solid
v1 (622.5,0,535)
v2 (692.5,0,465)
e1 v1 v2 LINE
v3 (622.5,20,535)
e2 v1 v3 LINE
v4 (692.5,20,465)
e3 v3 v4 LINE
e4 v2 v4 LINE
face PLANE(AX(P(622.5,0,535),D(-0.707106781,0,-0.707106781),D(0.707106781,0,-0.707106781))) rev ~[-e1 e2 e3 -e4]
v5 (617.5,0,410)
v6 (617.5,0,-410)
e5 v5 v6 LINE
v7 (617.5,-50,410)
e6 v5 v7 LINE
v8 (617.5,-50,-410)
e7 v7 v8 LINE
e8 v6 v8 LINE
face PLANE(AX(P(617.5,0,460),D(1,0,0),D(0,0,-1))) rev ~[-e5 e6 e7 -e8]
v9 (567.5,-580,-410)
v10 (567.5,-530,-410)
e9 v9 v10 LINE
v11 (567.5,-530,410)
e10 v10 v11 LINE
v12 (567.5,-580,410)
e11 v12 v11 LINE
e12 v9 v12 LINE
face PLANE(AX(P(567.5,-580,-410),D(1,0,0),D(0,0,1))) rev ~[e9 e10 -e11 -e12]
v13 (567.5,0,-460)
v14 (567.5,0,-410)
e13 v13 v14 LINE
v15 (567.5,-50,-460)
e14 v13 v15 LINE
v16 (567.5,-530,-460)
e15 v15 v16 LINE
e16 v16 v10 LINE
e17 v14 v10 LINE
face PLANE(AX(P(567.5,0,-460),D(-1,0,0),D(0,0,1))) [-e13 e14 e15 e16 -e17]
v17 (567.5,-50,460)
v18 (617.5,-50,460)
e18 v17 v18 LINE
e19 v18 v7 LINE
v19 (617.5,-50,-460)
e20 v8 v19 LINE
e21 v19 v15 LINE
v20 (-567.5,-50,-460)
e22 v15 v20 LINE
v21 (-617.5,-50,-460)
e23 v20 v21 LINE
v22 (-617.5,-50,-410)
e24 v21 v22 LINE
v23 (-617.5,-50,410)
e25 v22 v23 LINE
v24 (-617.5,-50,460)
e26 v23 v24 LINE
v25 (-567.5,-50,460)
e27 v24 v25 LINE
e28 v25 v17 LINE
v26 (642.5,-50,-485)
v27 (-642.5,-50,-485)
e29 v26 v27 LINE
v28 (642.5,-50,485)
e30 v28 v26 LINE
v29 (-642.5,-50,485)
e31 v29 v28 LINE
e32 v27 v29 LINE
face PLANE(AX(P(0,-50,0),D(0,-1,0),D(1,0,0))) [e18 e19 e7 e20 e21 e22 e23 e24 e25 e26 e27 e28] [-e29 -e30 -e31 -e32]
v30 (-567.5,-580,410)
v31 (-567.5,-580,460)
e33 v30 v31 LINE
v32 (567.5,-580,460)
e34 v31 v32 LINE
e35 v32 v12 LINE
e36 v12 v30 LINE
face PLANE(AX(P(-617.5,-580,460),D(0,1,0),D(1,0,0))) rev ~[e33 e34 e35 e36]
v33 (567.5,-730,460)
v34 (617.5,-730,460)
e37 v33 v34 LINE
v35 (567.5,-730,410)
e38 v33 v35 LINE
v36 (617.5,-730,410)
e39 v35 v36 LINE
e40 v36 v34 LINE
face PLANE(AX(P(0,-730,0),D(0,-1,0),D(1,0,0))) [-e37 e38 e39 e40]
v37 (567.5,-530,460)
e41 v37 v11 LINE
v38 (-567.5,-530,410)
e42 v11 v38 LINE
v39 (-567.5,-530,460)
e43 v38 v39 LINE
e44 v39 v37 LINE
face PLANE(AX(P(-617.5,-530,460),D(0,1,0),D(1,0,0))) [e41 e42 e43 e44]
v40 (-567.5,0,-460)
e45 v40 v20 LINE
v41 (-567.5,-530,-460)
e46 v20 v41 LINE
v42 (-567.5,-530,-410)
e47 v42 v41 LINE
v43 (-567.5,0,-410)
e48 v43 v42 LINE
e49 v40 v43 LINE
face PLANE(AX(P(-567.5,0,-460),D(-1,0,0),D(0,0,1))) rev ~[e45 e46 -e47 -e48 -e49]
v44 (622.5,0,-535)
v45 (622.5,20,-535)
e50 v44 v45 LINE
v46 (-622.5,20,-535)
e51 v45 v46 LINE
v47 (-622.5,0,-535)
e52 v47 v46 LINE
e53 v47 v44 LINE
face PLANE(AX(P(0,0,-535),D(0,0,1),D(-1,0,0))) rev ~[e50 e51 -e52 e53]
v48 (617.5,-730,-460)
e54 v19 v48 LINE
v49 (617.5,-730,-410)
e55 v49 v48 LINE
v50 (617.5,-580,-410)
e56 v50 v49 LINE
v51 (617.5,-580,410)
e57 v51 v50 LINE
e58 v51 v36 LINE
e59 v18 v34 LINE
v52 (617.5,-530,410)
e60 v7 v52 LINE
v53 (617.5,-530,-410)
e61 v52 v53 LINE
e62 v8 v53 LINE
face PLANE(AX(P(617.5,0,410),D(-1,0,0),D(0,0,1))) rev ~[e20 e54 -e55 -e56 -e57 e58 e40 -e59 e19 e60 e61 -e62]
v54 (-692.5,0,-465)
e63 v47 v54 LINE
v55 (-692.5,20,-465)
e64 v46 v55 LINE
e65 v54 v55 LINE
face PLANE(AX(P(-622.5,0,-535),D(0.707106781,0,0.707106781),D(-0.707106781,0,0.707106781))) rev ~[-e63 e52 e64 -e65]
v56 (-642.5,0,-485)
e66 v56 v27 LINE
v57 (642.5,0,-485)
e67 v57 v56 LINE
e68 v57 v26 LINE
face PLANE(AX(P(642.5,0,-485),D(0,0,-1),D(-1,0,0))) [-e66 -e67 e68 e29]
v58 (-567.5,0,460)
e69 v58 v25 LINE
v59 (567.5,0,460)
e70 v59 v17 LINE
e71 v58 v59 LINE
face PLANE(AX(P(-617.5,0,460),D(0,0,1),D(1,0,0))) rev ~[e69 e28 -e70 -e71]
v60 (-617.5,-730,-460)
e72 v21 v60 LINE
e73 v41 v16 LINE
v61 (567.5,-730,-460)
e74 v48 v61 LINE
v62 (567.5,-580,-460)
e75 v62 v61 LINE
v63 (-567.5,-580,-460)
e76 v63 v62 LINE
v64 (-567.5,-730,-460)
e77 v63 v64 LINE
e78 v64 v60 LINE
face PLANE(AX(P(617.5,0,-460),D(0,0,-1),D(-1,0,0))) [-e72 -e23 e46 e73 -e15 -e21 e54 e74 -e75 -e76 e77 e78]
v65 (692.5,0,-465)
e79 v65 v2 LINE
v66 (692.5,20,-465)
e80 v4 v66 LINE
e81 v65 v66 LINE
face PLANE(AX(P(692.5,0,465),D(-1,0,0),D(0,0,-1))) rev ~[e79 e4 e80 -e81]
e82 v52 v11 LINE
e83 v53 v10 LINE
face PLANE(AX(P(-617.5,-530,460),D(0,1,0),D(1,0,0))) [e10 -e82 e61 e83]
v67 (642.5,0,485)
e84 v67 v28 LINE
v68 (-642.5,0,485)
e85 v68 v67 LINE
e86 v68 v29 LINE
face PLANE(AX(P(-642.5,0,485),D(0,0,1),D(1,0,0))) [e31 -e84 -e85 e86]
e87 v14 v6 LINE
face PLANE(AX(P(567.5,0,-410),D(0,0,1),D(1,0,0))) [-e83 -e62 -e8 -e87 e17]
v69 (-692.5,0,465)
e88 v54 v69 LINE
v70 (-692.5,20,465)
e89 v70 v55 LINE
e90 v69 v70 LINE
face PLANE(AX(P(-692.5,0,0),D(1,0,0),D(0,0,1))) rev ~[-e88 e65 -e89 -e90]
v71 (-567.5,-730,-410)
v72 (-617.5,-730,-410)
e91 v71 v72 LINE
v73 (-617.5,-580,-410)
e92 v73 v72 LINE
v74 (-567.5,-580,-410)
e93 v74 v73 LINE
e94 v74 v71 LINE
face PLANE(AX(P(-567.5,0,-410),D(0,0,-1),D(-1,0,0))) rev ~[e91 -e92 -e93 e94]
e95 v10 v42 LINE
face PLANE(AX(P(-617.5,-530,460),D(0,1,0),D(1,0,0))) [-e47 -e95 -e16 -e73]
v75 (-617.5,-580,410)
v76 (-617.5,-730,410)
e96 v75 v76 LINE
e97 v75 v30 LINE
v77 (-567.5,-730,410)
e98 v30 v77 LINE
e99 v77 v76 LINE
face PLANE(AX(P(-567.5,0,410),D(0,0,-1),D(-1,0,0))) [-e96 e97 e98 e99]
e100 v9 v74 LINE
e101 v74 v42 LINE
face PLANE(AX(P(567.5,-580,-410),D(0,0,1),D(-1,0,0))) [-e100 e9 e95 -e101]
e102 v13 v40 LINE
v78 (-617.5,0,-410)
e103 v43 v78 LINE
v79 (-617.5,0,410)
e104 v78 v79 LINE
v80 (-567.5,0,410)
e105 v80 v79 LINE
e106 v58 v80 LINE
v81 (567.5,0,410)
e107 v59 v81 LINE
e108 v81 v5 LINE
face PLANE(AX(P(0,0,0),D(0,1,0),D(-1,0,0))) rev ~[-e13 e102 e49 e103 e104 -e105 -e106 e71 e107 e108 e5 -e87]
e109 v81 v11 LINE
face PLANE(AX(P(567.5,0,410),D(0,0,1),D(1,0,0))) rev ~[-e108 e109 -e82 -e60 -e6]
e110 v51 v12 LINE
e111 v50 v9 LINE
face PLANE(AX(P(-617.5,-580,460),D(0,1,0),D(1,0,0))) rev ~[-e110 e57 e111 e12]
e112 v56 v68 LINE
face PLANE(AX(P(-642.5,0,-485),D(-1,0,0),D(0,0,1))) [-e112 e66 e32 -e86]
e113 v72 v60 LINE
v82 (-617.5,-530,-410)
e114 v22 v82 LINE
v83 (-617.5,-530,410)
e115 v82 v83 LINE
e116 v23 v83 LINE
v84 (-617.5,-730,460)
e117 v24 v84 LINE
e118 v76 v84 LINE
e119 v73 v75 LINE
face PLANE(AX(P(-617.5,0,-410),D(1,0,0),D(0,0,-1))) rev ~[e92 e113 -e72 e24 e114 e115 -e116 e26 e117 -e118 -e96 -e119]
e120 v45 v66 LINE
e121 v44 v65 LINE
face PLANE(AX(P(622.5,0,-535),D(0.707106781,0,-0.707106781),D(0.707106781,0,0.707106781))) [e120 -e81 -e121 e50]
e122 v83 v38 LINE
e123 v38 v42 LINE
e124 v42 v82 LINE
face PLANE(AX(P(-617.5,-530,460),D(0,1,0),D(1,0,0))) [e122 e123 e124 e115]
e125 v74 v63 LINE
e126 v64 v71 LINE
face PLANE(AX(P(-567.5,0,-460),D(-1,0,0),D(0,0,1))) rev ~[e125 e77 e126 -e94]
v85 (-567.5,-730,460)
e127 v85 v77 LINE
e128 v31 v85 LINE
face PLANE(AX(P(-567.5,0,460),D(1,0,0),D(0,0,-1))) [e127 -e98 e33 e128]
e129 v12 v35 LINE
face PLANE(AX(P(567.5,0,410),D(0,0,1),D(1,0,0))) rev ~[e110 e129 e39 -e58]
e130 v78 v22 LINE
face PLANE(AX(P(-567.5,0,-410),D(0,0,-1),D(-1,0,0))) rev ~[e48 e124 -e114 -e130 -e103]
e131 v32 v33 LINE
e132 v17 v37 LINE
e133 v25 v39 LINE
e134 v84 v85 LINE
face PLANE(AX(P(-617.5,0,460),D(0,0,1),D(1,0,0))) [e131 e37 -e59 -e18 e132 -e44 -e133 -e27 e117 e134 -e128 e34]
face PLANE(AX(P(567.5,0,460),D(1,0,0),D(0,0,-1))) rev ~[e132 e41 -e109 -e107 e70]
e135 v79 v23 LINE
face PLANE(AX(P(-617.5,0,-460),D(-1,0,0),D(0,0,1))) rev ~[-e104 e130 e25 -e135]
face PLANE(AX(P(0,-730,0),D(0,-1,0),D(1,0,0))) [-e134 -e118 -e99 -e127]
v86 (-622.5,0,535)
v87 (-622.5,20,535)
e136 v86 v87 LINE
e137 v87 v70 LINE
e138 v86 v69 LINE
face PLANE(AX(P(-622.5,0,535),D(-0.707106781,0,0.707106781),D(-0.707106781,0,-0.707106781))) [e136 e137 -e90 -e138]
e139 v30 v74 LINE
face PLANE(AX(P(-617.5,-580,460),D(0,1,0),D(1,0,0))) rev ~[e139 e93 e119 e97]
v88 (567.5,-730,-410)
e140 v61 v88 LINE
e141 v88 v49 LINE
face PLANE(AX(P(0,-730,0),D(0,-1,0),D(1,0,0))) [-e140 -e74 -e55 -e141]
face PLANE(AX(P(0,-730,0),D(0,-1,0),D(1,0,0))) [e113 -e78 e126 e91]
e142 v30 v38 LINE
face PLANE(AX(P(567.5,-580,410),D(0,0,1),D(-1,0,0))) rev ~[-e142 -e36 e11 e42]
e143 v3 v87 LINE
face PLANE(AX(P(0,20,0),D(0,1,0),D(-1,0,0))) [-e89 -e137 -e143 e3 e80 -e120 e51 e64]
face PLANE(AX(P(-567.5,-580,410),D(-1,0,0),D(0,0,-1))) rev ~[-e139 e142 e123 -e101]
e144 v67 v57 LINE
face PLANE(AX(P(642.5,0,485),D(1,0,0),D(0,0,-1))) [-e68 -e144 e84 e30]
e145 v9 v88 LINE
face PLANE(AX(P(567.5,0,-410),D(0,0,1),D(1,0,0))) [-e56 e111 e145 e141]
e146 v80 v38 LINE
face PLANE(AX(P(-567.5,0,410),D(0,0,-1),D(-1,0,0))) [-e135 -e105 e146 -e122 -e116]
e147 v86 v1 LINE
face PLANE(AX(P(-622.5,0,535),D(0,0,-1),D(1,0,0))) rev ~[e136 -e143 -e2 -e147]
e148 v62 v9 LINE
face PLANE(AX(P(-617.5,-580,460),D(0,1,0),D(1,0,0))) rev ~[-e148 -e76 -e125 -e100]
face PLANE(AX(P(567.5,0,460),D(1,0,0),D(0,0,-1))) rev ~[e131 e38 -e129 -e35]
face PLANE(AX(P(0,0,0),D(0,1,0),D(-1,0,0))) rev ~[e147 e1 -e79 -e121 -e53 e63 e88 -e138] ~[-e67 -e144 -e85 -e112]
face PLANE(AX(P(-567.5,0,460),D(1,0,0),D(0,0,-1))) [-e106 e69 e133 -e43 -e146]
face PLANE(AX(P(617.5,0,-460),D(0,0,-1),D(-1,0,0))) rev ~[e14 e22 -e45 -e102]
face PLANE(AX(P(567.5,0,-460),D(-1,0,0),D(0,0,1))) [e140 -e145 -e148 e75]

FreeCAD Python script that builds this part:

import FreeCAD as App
import Part
import Sketcher
from FreeCAD import Vector
Q = App.Units.Quantity

doc = App.newDocument("Part")
body = doc.addObject("PartDesign::Body", "Body")

sketch1 = doc.addObject("Sketcher::SketchObject", "Sketch")
body.addObject(sketch1)
sketch1.AttachmentSupport = (doc.XZ_Plane, [""])
sketch1.MapMode = "FlatFace"
sketch1.addGeometry([
    Part.LineSegment(Vector(-692.5, 465, 0), Vector(-622.5, 535, 0)),
    Part.LineSegment(Vector(-622.5, 535, 0), Vector(622.5, 535, 0)),
    Part.LineSegment(Vector(622.5, 535, 0), Vector(692.5, 465, 0)),
    Part.LineSegment(Vector(692.5, 465, 0), Vector(692.5, -465, 0)),
    Part.LineSegment(Vector(692.5, -465, 0), Vector(622.5, -535, 0)),
    Part.LineSegment(Vector(622.5, -535, 0), Vector(-622.5, -535, 0)),
    Part.LineSegment(Vector(-622.5, -535, 0), Vector(-692.5, -465, 0)),
    Part.LineSegment(Vector(-692.5, -465, 0), Vector(-692.5, 465, 0)),
], False)
sketch1.addConstraint([
    Sketcher.Constraint("Coincident", 0, 2, 1, 1),
    Sketcher.Constraint("Coincident", 1, 2, 2, 1),
    Sketcher.Constraint("Coincident", 2, 2, 3, 1),
    Sketcher.Constraint("Coincident", 3, 2, 4, 1),
    Sketcher.Constraint("Coincident", 4, 2, 5, 1),
    Sketcher.Constraint("Coincident", 5, 2, 6, 1),
    Sketcher.Constraint("Coincident", 6, 2, 7, 1),
    Sketcher.Constraint("Coincident", 7, 2, 0, 1),
    Sketcher.Constraint("Horizontal", 1),
    Sketcher.Constraint("Vertical", 3),
    Sketcher.Constraint("Horizontal", 5),
    Sketcher.Constraint("Vertical", 7),
    Sketcher.Constraint("Symmetric", 0, 2, 4, 2, -1, 1),
    Sketcher.Constraint("Symmetric", 2, 2, 6, 2, -1, 1),
    Sketcher.Constraint("Perpendicular", 0, 2),
    Sketcher.Constraint("Perpendicular", 2, 4),
    Sketcher.Constraint("Perpendicular", 4, 6),
    Sketcher.Constraint("Horizontal", 3, 2, 6, 2),
    Sketcher.Constraint("Vertical", 1, 2, 4, 2),
    Sketcher.Constraint("DistanceY", -1, 1, 0, 2, Q("535 mm")),
    Sketcher.Constraint("DistanceX", 1, 2, 2, 2, Q("70 mm")),
    Sketcher.Constraint("DistanceX", 6, 2, 3, 2, Q("1385 mm")),
])
pad1 = doc.addObject("PartDesign::Pad", "Pad")
body.addObject(pad1)
pad1.Profile = sketch1
pad1.Length = 20
pad1.Reversed = True

sketch2 = doc.addObject("Sketcher::SketchObject", "Sketch001")
body.addObject(sketch2)
sketch2.AttachmentSupport = (doc.XZ_Plane, [""])
sketch2.MapMode = "FlatFace"
sketch2.addGeometry([
    Part.LineSegment(Vector(642.5, 485, 0), Vector(-642.5, 485, 0)),
    Part.LineSegment(Vector(-642.5, 485, 0), Vector(-642.5, -485, 0)),
    Part.LineSegment(Vector(-642.5, -485, 0), Vector(642.5, -485, 0)),
    Part.LineSegment(Vector(642.5, -485, 0), Vector(642.5, 485, 0)),
    Part.LineSegment(Vector(-617.5, -460, 0), Vector(-617.5, 460, 0)),
    Part.LineSegment(Vector(-617.5, 460, 0), Vector(617.5, 460, 0)),
    Part.LineSegment(Vector(617.5, 460, 0), Vector(617.5, -460, 0)),
    Part.LineSegment(Vector(617.5, -460, 0), Vector(-617.5, -460, 0)),
], False)
sketch2.addConstraint([
    Sketcher.Constraint("Coincident", 0, 2, 1, 1),
    Sketcher.Constraint("Coincident", 1, 2, 2, 1),
    Sketcher.Constraint("Coincident", 2, 2, 3, 1),
    Sketcher.Constraint("Coincident", 3, 2, 0, 1),
    Sketcher.Constraint("Coincident", 4, 2, 5, 1),
    Sketcher.Constraint("Coincident", 5, 2, 6, 1),
    Sketcher.Constraint("Coincident", 6, 2, 7, 1),
    Sketcher.Constraint("Coincident", 7, 2, 4, 1),
    Sketcher.Constraint("Horizontal", 0),
    Sketcher.Constraint("Vertical", 1),
    Sketcher.Constraint("Horizontal", 2),
    Sketcher.Constraint("Vertical", 3),
    Sketcher.Constraint("Vertical", 4),
    Sketcher.Constraint("Horizontal", 5),
    Sketcher.Constraint("Vertical", 6),
    Sketcher.Constraint("Horizontal", 7),
    Sketcher.Constraint("Symmetric", 0, 2, 2, 2, -1, 1),
    Sketcher.Constraint("Symmetric", 4, 2, 6, 2, -1, 1),
    Sketcher.Constraint("DistanceX", 0, 2, 4, 2, Q("25 mm")),
    Sketcher.Constraint("DistanceY", 4, 2, 0, 2, Q("25 mm")),
    Sketcher.Constraint("DistanceX", 0, 2, 0, 1, Q("1285 mm")),
    Sketcher.Constraint("DistanceY", 1, 2, 1, 1, Q("970 mm")),
])
pad2 = doc.addObject("PartDesign::Pad", "Pad001")
body.addObject(pad2)
pad2.Profile = sketch2
pad2.Length = 50

sketch3 = doc.addObject("Sketcher::SketchObject", "Sketch002")
body.addObject(sketch3)
sketch3.AttachmentSupport = (doc.XZ_Plane, [""])
sketch3.MapMode = "FlatFace"
sketch3.addGeometry([
    Part.LineSegment(Vector(617.5, 460, 0), Vector(567.5, 460, 0)),
    Part.LineSegment(Vector(567.5, 460, 0), Vector(567.5, 410, 0)),
    Part.LineSegment(Vector(567.5, 410, 0), Vector(617.5, 410, 0)),
    Part.LineSegment(Vector(617.5, 410, 0), Vector(617.5, 460, 0)),
    Part.LineSegment(Vector(567.5, -410, 0), Vector(567.5, -460, 0)),
    Part.LineSegment(Vector(567.5, -460, 0), Vector(617.5, -460, 0)),
    Part.LineSegment(Vector(617.5, -460, 0), Vector(617.5, -410, 0)),
    Part.LineSegment(Vector(617.5, -410, 0), Vector(567.5, -410, 0)),
    Part.LineSegment(Vector(-567.5, 460, 0), Vector(-617.5, 460, 0)),
    Part.LineSegment(Vector(-617.5, 460, 0), Vector(-617.5, 410, 0)),
    Part.LineSegment(Vector(-617.5, 410, 0), Vector(-567.5, 410, 0)),
    Part.LineSegment(Vector(-567.5, 410, 0), Vector(-567.5, 460, 0)),
    Part.LineSegment(Vector(-567.5, -410, 0), Vector(-617.5, -410, 0)),
    Part.LineSegment(Vector(-617.5, -410, 0), Vector(-617.5, -460, 0)),
    Part.LineSegment(Vector(-617.5, -460, 0), Vector(-567.5, -460, 0)),
    Part.LineSegment(Vector(-567.5, -460, 0), Vector(-567.5, -410, 0)),
], False)
sketch3.addConstraint([
    Sketcher.Constraint("Coincident", 0, 2, 1, 1),
    Sketcher.Constraint("Coincident", 1, 2, 2, 1),
    Sketcher.Constraint("Coincident", 2, 2, 3, 1),
    Sketcher.Constraint("Coincident", 3, 2, 0, 1),
    Sketcher.Constraint("Coincident", 4, 2, 5, 1),
    Sketcher.Constraint("Coincident", 5, 2, 6, 1),
    Sketcher.Constraint("Coincident", 6, 2, 7, 1),
    Sketcher.Constraint("Coincident", 7, 2, 4, 1),
    Sketcher.Constraint("Coincident", 8, 2, 9, 1),
    Sketcher.Constraint("Coincident", 9, 2, 10, 1),
    Sketcher.Constraint("Coincident", 10, 2, 11, 1),
    Sketcher.Constraint("Coincident", 11, 2, 8, 1),
    Sketcher.Constraint("Coincident", 12, 2, 13, 1),
    Sketcher.Constraint("Coincident", 13, 2, 14, 1),
    Sketcher.Constraint("Coincident", 14, 2, 15, 1),
    Sketcher.Constraint("Coincident", 15, 2, 12, 1),
    Sketcher.Constraint("Horizontal", 0),
    Sketcher.Constraint("Vertical", 1),
    Sketcher.Constraint("Horizontal", 2),
    Sketcher.Constraint("Vertical", 3),
    Sketcher.Constraint("Vertical", 4),
    Sketcher.Constraint("Horizontal", 5),
    Sketcher.Constraint("Vertical", 6),
    Sketcher.Constraint("Horizontal", 7),
    Sketcher.Constraint("Horizontal", 8),
    Sketcher.Constraint("Vertical", 9),
    Sketcher.Constraint("Horizontal", 10),
    Sketcher.Constraint("Vertical", 11),
    Sketcher.Constraint("Horizontal", 12),
    Sketcher.Constraint("Vertical", 13),
    Sketcher.Constraint("Horizontal", 14),
    Sketcher.Constraint("Vertical", 15),
    Sketcher.Constraint("Symmetric", 5, 2, 8, 2, -1, 1),
    Sketcher.Constraint("Symmetric", 7, 2, 10, 2, -1, 1),
    Sketcher.Constraint("Symmetric", 2, 2, 12, 2, -1, 1),
    Sketcher.Constraint("Symmetric", 0, 2, 14, 2, -1, 1),
    Sketcher.Constraint("Symmetric", 3, 2, 8, 2, -2),
    Sketcher.Constraint("Symmetric", 1, 2, 10, 2, -2),
    Sketcher.Constraint("Equal", 14, 1),
    Sketcher.Constraint("DistanceX", 0, 2, 0, 1, Q("50 mm")),
    Sketcher.Constraint("DistanceY", -1, 1, 0, 2, Q("460 mm")),
    Sketcher.Constraint("DistanceX", 8, 2, 0, 2, Q("1185 mm")),
])
pad3 = doc.addObject("PartDesign::Pad", "Pad002")
body.addObject(pad3)
pad3.Profile = sketch3
pad3.Length = 730

sketch4 = doc.addObject("Sketcher::SketchObject", "Sketch003")
body.addObject(sketch4)
sketch4.AttachmentSupport = (doc.XZ_Plane, [""])
sketch4.MapMode = "FlatFace"
sketch4.AttachmentOffset = App.Placement(Vector(0, 0, 580), App.Rotation())
sketch4.addGeometry([
    Part.LineSegment(Vector(567.5, 410, 0), Vector(617.5, 410, 0)),
    Part.LineSegment(Vector(617.5, 410, 0), Vector(617.5, -410, 0)),
    Part.LineSegment(Vector(617.5, -410, 0), Vector(567.5, -410, 0)),
    Part.LineSegment(Vector(567.5, -410, 0), Vector(567.5, 410, 0)),
    Part.LineSegment(Vector(567.5, 460, 0), Vector(567.5, 410, 0)),
    Part.LineSegment(Vector(567.5, 410, 0), Vector(-567.5, 410, 0)),
    Part.LineSegment(Vector(-567.5, 410, 0), Vector(-567.5, 460, 0)),
    Part.LineSegment(Vector(-567.5, 460, 0), Vector(567.5, 460, 0)),
    Part.LineSegment(Vector(-617.5, 410, 0), Vector(-567.5, 410, 0)),
    Part.LineSegment(Vector(-567.5, 410, 0), Vector(-567.5, -410, 0)),
    Part.LineSegment(Vector(-567.5, -410, 0), Vector(-617.5, -410, 0)),
    Part.LineSegment(Vector(-617.5, -410, 0), Vector(-617.5, 410, 0)),
    Part.LineSegment(Vector(-567.5, -410, 0), Vector(567.5, -410, 0)),
    Part.LineSegment(Vector(567.5, -410, 0), Vector(567.5, -460, 0)),
    Part.LineSegment(Vector(567.5, -460, 0), Vector(-567.5, -460, 0)),
    Part.LineSegment(Vector(-567.5, -460, 0), Vector(-567.5, -410, 0)),
], False)
sketch4.addConstraint([
    Sketcher.Constraint("Coincident", 0, 2, 1, 1),
    Sketcher.Constraint("Coincident", 1, 2, 2, 1),
    Sketcher.Constraint("Coincident", 2, 2, 3, 1),
    Sketcher.Constraint("Coincident", 3, 2, 0, 1),
    Sketcher.Constraint("Coincident", 4, 2, 5, 1),
    Sketcher.Constraint("Coincident", 5, 2, 6, 1),
    Sketcher.Constraint("Coincident", 6, 2, 7, 1),
    Sketcher.Constraint("Coincident", 7, 2, 4, 1),
    Sketcher.Constraint("Coincident", 8, 2, 9, 1),
    Sketcher.Constraint("Coincident", 9, 2, 10, 1),
    Sketcher.Constraint("Coincident", 10, 2, 11, 1),
    Sketcher.Constraint("Coincident", 11, 2, 8, 1),
    Sketcher.Constraint("Coincident", 12, 2, 13, 1),
    Sketcher.Constraint("Coincident", 13, 2, 14, 1),
    Sketcher.Constraint("Coincident", 14, 2, 15, 1),
    Sketcher.Constraint("Coincident", 15, 2, 12, 1),
    Sketcher.Constraint("Horizontal", 0),
    Sketcher.Constraint("Vertical", 1),
    Sketcher.Constraint("Horizontal", 2),
    Sketcher.Constraint("Vertical", 3),
    Sketcher.Constraint("Vertical", 4),
    Sketcher.Constraint("Horizontal", 5),
    Sketcher.Constraint("Vertical", 6),
    Sketcher.Constraint("Horizontal", 7),
    Sketcher.Constraint("Horizontal", 8),
    Sketcher.Constraint("Vertical", 9),
    Sketcher.Constraint("Horizontal", 10),
    Sketcher.Constraint("Vertical", 11),
    Sketcher.Constraint("Horizontal", 12),
    Sketcher.Constraint("Vertical", 13),
    Sketcher.Constraint("Horizontal", 14),
    Sketcher.Constraint("Vertical", 15),
    Sketcher.Constraint("Coincident", 4, 2, 3, 2),
    Sketcher.Constraint("Coincident", 8, 2, 5, 2),
    Sketcher.Constraint("Coincident", 12, 2, 2, 2),
    Sketcher.Constraint("Coincident", 15, 2, 9, 2),
    Sketcher.Constraint("Symmetric", 2, 2, 5, 2, -1, 1),
    Sketcher.Constraint("Equal", 2, 8),
    Sketcher.Constraint("Equal", 10, 4),
    Sketcher.Constraint("Equal", 6, 13),
    Sketcher.Constraint("DistanceX", 0, 1, 0, 2, Q("50 mm")),
    Sketcher.Constraint("DistanceX", 5, 2, 5, 1, Q("1135 mm")),
    Sketcher.Constraint("DistanceY", 1, 2, 1, 1, Q("820 mm")),
])
pad4 = doc.addObject("PartDesign::Pad", "Pad003")
body.addObject(pad4)
pad4.Profile = sketch4
pad4.Length = 50
pad4.Reversed = True

doc.recompute()
